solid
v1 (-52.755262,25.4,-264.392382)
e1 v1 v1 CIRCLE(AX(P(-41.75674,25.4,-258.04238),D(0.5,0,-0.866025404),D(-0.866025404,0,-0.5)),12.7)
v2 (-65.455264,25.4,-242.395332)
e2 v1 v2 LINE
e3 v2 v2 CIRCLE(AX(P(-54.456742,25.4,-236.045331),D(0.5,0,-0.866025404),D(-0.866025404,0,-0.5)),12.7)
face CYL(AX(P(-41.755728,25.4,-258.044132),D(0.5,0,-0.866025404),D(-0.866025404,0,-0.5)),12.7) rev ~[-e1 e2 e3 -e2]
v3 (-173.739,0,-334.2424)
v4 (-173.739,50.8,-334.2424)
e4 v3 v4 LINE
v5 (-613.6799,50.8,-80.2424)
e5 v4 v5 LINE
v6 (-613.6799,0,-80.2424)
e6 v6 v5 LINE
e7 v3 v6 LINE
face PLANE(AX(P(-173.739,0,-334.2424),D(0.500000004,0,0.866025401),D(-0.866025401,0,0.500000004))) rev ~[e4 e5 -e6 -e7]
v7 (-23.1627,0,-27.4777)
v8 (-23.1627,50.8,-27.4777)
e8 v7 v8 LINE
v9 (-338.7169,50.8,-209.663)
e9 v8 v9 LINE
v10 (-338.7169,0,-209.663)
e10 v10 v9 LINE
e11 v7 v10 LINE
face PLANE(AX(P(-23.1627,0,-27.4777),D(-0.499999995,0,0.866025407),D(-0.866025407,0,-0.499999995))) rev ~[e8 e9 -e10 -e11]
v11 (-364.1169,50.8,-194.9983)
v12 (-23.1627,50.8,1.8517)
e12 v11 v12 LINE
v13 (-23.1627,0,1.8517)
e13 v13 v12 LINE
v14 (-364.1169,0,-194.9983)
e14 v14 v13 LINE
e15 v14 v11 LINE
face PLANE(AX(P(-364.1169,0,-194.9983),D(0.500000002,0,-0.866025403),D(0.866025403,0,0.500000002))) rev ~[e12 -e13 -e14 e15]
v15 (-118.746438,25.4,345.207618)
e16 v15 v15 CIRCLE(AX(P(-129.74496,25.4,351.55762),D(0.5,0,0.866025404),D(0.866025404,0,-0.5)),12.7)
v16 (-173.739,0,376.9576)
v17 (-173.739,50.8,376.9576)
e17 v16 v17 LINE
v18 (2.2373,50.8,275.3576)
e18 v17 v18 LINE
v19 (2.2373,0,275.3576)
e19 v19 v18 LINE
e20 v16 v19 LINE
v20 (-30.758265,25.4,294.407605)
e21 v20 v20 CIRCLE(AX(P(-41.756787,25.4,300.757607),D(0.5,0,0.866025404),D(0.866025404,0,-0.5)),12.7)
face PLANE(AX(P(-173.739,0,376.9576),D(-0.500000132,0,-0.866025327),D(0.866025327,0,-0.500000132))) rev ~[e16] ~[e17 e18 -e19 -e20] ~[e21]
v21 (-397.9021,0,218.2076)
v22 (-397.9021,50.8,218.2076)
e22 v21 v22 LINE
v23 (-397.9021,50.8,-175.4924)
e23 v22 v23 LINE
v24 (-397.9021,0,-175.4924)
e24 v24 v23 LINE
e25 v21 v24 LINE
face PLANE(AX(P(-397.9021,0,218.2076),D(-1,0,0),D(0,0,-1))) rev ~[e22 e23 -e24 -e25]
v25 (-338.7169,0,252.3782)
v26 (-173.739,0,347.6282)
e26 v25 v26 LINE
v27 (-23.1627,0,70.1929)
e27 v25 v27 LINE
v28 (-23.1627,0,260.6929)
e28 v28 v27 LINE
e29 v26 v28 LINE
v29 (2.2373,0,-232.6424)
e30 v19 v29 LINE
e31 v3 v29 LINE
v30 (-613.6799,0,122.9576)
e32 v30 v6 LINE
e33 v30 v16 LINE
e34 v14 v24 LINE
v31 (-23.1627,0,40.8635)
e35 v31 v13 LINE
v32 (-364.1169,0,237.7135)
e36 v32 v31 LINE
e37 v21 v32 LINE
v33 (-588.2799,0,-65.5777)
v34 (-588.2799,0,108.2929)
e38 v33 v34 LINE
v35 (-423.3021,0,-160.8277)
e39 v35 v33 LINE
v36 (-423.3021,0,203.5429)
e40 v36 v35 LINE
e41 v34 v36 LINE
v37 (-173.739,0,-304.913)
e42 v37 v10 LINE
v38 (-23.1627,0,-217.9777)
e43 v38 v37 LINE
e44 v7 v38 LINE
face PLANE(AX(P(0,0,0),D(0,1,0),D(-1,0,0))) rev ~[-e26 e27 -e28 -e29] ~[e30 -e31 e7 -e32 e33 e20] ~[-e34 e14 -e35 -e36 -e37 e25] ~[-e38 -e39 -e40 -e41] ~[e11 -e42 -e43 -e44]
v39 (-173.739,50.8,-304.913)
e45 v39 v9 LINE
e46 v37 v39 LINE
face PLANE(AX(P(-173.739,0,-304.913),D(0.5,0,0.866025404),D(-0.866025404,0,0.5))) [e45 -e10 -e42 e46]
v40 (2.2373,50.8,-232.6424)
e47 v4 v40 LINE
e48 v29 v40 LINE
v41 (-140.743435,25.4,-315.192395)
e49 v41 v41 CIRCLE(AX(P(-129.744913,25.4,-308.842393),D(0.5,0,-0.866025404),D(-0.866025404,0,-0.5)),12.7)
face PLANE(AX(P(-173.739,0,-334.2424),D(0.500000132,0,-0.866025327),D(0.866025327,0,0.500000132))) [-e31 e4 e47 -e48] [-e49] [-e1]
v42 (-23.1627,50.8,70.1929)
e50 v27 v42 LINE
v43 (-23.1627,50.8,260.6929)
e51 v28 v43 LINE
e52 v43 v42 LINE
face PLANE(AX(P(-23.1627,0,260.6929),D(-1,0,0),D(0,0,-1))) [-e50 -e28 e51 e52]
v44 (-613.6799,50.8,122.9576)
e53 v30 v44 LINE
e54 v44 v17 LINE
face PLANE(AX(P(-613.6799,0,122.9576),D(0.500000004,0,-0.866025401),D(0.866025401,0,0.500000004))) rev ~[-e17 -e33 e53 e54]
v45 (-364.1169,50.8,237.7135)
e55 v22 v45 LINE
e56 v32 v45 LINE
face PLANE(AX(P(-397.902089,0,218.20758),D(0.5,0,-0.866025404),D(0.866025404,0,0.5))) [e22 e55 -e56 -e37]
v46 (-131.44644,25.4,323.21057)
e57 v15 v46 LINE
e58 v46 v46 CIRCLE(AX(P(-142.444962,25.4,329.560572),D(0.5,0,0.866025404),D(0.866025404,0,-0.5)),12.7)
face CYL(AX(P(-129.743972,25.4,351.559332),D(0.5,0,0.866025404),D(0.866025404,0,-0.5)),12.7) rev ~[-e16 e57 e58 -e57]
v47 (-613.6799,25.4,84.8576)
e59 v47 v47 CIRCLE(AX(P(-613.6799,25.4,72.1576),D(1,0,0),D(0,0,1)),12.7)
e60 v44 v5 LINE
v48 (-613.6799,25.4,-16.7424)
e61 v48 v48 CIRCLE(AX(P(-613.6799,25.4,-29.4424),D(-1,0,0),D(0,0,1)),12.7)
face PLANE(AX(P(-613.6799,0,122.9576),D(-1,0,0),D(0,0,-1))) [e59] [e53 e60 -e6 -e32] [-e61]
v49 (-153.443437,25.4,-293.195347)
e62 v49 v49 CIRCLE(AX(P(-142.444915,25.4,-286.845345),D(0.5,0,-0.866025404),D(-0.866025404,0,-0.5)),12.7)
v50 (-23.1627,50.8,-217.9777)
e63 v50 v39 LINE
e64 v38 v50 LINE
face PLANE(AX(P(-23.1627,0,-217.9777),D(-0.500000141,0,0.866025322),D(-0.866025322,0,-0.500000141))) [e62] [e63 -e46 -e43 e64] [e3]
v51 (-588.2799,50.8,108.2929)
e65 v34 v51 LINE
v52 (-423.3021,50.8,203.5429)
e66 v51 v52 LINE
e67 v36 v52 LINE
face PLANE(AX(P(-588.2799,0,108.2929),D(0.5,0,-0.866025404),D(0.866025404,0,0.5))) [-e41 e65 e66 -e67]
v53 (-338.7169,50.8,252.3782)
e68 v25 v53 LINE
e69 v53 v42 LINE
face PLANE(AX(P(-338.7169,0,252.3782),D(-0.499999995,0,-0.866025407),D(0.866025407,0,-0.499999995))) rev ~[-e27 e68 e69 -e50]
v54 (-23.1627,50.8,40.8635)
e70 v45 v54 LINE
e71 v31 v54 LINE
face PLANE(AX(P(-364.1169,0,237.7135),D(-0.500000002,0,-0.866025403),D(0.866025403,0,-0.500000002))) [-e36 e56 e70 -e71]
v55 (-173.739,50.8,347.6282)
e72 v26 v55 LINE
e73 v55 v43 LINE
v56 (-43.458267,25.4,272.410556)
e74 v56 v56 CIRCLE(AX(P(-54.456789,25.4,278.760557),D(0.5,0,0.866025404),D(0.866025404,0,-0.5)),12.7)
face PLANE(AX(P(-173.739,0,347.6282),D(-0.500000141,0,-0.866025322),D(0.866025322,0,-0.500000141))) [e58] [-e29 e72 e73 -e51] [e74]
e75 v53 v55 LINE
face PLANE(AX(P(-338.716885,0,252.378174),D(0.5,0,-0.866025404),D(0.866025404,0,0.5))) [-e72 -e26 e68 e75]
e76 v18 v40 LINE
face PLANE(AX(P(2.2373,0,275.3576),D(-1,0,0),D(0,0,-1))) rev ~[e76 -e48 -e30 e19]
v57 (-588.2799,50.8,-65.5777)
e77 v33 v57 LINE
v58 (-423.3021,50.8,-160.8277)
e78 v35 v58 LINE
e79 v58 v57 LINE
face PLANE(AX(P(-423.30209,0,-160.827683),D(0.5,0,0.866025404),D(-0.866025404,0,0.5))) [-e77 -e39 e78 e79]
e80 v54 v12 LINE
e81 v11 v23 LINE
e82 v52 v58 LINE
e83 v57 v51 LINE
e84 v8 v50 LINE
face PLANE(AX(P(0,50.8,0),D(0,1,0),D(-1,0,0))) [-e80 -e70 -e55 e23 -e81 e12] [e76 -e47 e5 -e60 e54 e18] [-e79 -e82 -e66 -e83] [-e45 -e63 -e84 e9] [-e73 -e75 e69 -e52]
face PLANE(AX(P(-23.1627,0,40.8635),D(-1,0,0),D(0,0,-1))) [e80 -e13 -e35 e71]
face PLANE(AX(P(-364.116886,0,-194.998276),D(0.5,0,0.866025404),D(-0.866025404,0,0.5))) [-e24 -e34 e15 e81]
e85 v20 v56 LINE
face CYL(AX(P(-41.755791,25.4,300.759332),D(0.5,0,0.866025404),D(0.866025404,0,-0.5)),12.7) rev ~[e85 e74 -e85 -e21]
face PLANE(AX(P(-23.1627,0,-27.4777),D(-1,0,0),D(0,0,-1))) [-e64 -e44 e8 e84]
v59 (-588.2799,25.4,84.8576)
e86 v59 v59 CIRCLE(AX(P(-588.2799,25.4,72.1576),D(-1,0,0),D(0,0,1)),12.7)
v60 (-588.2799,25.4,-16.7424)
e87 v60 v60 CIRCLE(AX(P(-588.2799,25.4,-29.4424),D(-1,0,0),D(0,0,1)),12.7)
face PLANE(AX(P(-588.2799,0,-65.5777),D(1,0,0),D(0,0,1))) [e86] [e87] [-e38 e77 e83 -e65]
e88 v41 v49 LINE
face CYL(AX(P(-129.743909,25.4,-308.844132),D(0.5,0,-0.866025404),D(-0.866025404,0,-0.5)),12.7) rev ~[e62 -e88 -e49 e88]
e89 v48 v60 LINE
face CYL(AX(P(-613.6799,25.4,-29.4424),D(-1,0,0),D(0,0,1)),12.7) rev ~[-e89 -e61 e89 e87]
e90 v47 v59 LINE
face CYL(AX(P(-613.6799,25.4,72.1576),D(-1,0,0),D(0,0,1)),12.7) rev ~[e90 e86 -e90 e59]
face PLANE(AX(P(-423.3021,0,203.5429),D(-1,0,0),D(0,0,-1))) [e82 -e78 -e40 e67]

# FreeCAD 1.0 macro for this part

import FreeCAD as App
import Part
import Sketcher
Q = App.Units.Quantity


def add_polygon(sketch, points):
    """Adds a closed chain of lines whose ends are joined by coincident constraints."""
    first, n = sketch.GeometryCount, len(points)
    for a, b in zip(points, points[1:] + points[:1]):
        sketch.addGeometry(Part.LineSegment(App.Vector(*a, 0), App.Vector(*b, 0)), False)
    for i in range(n):
        sketch.addConstraint(Sketcher.Constraint("Coincident", first + i, 2, first + (i + 1) % n, 1))

doc = App.newDocument("Part")
params = doc.addObject("Spreadsheet::Sheet", "Params")
for row, (alias, value) in enumerate([
    ("sketch1_height", "8 in"),
    ("sketch1_height2", "20 in"),
    ("sketch1_length", "20 in"),
    ("sketch1_length2", "8 in"),
    ("sketch1_height3", "15.5 in"),
    ("pad1_length", "2 in"),
    ("sketch2_diameter", "1 in"),
    ("pocket1_length", "1 in"),
    ("sketch3_diameter", "1 in"),
    ("pocket2_length", "1 in"),
    ("sketch4_diameter", "1 in"),
    ("pocket3_length", "1 in"),
], start=1):
    params.set(f"A{row}", alias)
    params.set(f"B{row}", "=" + value)
    params.setAlias(f"B{row}", alias)

body = doc.addObject("PartDesign::Body", "Body")

# Sketch on XZ plane
sketch1 = body.newObject("Sketcher::SketchObject", "Sketch")
sketch1.AttachmentSupport = (doc.getObject("XZ_Plane"), [""])
sketch1.MapMode = "FlatFace"
add_polygon(sketch1, [(-614, -80), (-614, 123), (-174, 377), (2, 275), (2, -233), (-174, -334)])  # lines 0-5
add_polygon(sketch1, [(-423, 204), (-588, 108), (-588, -66), (-423, -161)])  # lines 6-9
add_polygon(sketch1, [(-364, 238), (-398, 218), (-398, -175), (-364, -195), (-23, 2), (-23, 41)])  # lines 10-15
add_polygon(sketch1, [(-174, 348), (-339, 252), (-23, 70), (-23, 261)])  # lines 16-19
add_polygon(sketch1, [(-23, -218), (-23, -27), (-339, -210), (-174, -305)])  # lines 20-23
sketch1.addConstraint(Sketcher.Constraint("Vertical", 0))
sketch1.addConstraint(Sketcher.Constraint("Vertical", 3))
sketch1.addConstraint(Sketcher.Constraint("Vertical", 7))
sketch1.addConstraint(Sketcher.Constraint("Vertical", 9))
sketch1.addConstraint(Sketcher.Constraint("Vertical", 11))
sketch1.addConstraint(Sketcher.Constraint("Vertical", 14))
sketch1.addConstraint(Sketcher.Constraint("Vertical", 18))
sketch1.addConstraint(Sketcher.Constraint("Vertical", 20))
sketch1.addConstraint(Sketcher.Constraint("Parallel", 1, 4))
sketch1.addConstraint(Sketcher.Constraint("Parallel", 2, 5))
sketch1.addConstraint(Sketcher.Constraint("Parallel", 4, 6))
sketch1.addConstraint(Sketcher.Constraint("Parallel", 5, 8))
sketch1.addConstraint(Sketcher.Constraint("Parallel", 6, 10))
sketch1.addConstraint(Sketcher.Constraint("Parallel", 8, 12))
sketch1.addConstraint(Sketcher.Constraint("Parallel", 10, 13))
sketch1.addConstraint(Sketcher.Constraint("Parallel", 12, 15))
sketch1.addConstraint(Sketcher.Constraint("Parallel", 13, 16))
sketch1.addConstraint(Sketcher.Constraint("Parallel", 15, 17))
sketch1.addConstraint(Sketcher.Constraint("Parallel", 17, 19))
sketch1.addConstraint(Sketcher.Constraint("Parallel", 16, 21))
sketch1.addConstraint(Sketcher.Constraint("Parallel", 19, 22))
sketch1.addConstraint(Sketcher.Constraint("Parallel", 21, 23))
sketch1.addConstraint(Sketcher.Constraint("Vertical", 1, 2, 4, 2))
sketch1.addConstraint(Sketcher.Constraint("Vertical", 12, 2, 15, 2))
sketch1.addConstraint(Sketcher.Constraint("Vertical", 14, 2, 17, 2))
sketch1.addConstraint(Sketcher.Constraint("Vertical", 4, 2, 19, 2))
sketch1.addConstraint(Sketcher.Constraint("Vertical", 18, 2, 20, 2))
sketch1.addConstraint(Sketcher.Constraint("Vertical", 16, 2, 21, 2))
sketch1.addConstraint(Sketcher.Constraint("Vertical", 19, 2, 22, 2))
sketch1.addConstraint(Sketcher.Constraint("Equal", 2, 4))
sketch1.addConstraint(Sketcher.Constraint("Equal", 8, 16))
sketch1.addConstraint(Sketcher.Constraint("DistanceY", 0, 1, 0, 2, Q("8 in")))
sketch1.addConstraint(Sketcher.Constraint("DistanceY", 3, 2, 3, 1, Q("20 in")))
sketch1.addConstraint(Sketcher.Constraint("Distance", 1, Q("20 in")))
sketch1.addConstraint(Sketcher.Constraint("Distance", 2, Q("8 in")))
sketch1.addConstraint(Sketcher.Constraint("DistanceY", 11, 2, 11, 1, Q("15.5 in")))
sketch1.addConstraint(Sketcher.Constraint("Distance", 13, Q("15.5 in")))
sketch1.addConstraint(Sketcher.Constraint("DistanceY", 18, 1, 18, 2, Q("7.5 in")))
sketch1.addConstraint(Sketcher.Constraint("DistanceX", 0, 2, 6, 2, Q("1 in")))
sketch1.addConstraint(Sketcher.Constraint("DistanceX", 9, 2, 10, 2, Q("1 in")))
sketch1.addConstraint(Sketcher.Constraint("DistanceX", 13, 2, 3, 2, Q("1 in")))
sketch1.addConstraint(Sketcher.Constraint("DistanceY", 0, 2, 10, 2, Q("3.75 in")))
sketch1.addConstraint(Sketcher.Constraint("DistanceY", 7, 2, 7, 1, Q("6.8453 in")))
sketch1.addConstraint(Sketcher.Constraint("DistanceY", -1, 1, 6, 2, Q("4.2635 in")))
sketch1.addConstraint(Sketcher.Constraint("DistanceX", 12, 2, -1, 1, Q("14.3353 in")))
sketch1.addConstraint(Sketcher.Constraint("DistanceY", 12, 2, -1, 1, Q("7.6771 in")))
sketch1.addConstraint(Sketcher.Constraint("DistanceY", -1, 1, 17, 2, Q("2.7635 in")))
sketch1.addConstraint(Sketcher.Constraint("DistanceY", 20, 2, -1, 1, Q("1.0818 in")))
sketch1.setExpression("Constraints[55]", "Params.sketch1_height")
sketch1.setExpression("Constraints[56]", "Params.sketch1_height2")
sketch1.setExpression("Constraints[57]", "Params.sketch1_length")
sketch1.setExpression("Constraints[58]", "Params.sketch1_length2")
sketch1.setExpression("Constraints[59]", "Params.sketch1_height3")
pad1 = body.newObject("PartDesign::Pad", "Pad")
pad1.Profile = sketch1
pad1.setExpression("Length", "Params.pad1_length")
pad1.Reversed = True

# Sketch on an angled plane
sketch2 = body.newObject("Sketcher::SketchObject", "Sketch001")
sketch2.Placement = App.Placement(App.Vector(2.2373, 0, 275.3576), App.Rotation(App.Vector(0.866025404, 0, -0.5), App.Vector(0, 1, 0), App.Vector(0.5, 0, 0.866025404), "ZXY"))
sketch2.addGeometry(Part.Circle(App.Vector(-152, 25, 0), App.Vector(0, 0, 1), 13), False)
sketch2.addGeometry(Part.Circle(App.Vector(-51, 25, 0), App.Vector(0, 0, 1), 13), False)
sketch2.addConstraint(Sketcher.Constraint("Equal", 0, 1))
sketch2.addConstraint(Sketcher.Constraint("Horizontal", 0, 3, 1, 3))
sketch2.addConstraint(Sketcher.Constraint("Diameter", 0, Q("1 in")))
sketch2.addConstraint(Sketcher.Constraint("DistanceY", -1, 1, 0, 3, Q("1 in")))
sketch2.addConstraint(Sketcher.Constraint("DistanceX", 1, 3, -1, 1, Q("2 in")))
sketch2.addConstraint(Sketcher.Constraint("DistanceX", 0, 3, -1, 1, Q("6 in")))
sketch2.setExpression("Constraints[2]", "Params.sketch2_diameter")
pocket1 = body.newObject("PartDesign::Pocket", "Pocket")
pocket1.Profile = sketch2
pocket1.setExpression("Length", "Params.pocket1_length")

# Sketch on an angled plane
sketch3 = body.newObject("Sketcher::SketchObject", "Sketch002")
sketch3.Placement = App.Placement(App.Vector(-173.739, 0, -334.2424), App.Rotation(App.Vector(-0.866025404, 0, -0.5), App.Vector(0, 1, 0), App.Vector(0.5, 0, -0.866025404), "ZXY"))
sketch3.addGeometry(Part.Circle(App.Vector(-152, 25, 0), App.Vector(0, 0, 1), 13), False)
sketch3.addGeometry(Part.Circle(App.Vector(-51, 25, 0), App.Vector(0, 0, 1), 13), False)
sketch3.addConstraint(Sketcher.Constraint("Equal", 0, 1))
sketch3.addConstraint(Sketcher.Constraint("Horizontal", 0, 3, 1, 3))
sketch3.addConstraint(Sketcher.Constraint("Diameter", 0, Q("1 in")))
sketch3.addConstraint(Sketcher.Constraint("DistanceY", -1, 1, 0, 3, Q("1 in")))
sketch3.addConstraint(Sketcher.Constraint("DistanceX", 1, 3, -1, 1, Q("2 in")))
sketch3.addConstraint(Sketcher.Constraint("DistanceX", 0, 3, -1, 1, Q("6 in")))
sketch3.setExpression("Constraints[2]", "Params.sketch3_diameter")
pocket2 = body.newObject("PartDesign::Pocket", "Pocket001")
pocket2.Profile = sketch3
pocket2.setExpression("Length", "Params.pocket2_length")

# Sketch on YZ plane
sketch4 = body.newObject("Sketcher::SketchObject", "Sketch003")
sketch4.AttachmentSupport = (doc.getObject("YZ_Plane"), [""])
sketch4.MapMode = "FlatFace"
sketch4.AttachmentOffset = App.Placement(App.Vector(0, 0, -613.6799), App.Rotation())
sketch4.addGeometry(Part.Circle(App.Vector(25, 72, 0), App.Vector(0, 0, 1), 13), False)
sketch4.addGeometry(Part.Circle(App.Vector(25, -29, 0), App.Vector(0, 0, 1), 13), False)
sketch4.addConstraint(Sketcher.Constraint("Equal", 0, 1))
sketch4.addConstraint(Sketcher.Constraint("Vertical", 0, 3, 1, 3))
sketch4.addConstraint(Sketcher.Constraint("Diameter", 0, Q("1 in")))
sketch4.addConstraint(Sketcher.Constraint("DistanceX", -1, 1, 0, 3, Q("1 in")))
sketch4.addConstraint(Sketcher.Constraint("DistanceY", 1, 3, 0, 3, Q("4 in")))
sketch4.addConstraint(Sketcher.Constraint("DistanceY", -1, 1, 0, 3, Q("72.1576 mm")))
sketch4.setExpression("Constraints[2]", "Params.sketch4_diameter")
pocket3 = body.newObject("PartDesign::Pocket", "Pocket002")
pocket3.Profile = sketch4
pocket3.setExpression("Length", "Params.pocket3_length")
pocket3.Reversed = True

doc.recompute()
